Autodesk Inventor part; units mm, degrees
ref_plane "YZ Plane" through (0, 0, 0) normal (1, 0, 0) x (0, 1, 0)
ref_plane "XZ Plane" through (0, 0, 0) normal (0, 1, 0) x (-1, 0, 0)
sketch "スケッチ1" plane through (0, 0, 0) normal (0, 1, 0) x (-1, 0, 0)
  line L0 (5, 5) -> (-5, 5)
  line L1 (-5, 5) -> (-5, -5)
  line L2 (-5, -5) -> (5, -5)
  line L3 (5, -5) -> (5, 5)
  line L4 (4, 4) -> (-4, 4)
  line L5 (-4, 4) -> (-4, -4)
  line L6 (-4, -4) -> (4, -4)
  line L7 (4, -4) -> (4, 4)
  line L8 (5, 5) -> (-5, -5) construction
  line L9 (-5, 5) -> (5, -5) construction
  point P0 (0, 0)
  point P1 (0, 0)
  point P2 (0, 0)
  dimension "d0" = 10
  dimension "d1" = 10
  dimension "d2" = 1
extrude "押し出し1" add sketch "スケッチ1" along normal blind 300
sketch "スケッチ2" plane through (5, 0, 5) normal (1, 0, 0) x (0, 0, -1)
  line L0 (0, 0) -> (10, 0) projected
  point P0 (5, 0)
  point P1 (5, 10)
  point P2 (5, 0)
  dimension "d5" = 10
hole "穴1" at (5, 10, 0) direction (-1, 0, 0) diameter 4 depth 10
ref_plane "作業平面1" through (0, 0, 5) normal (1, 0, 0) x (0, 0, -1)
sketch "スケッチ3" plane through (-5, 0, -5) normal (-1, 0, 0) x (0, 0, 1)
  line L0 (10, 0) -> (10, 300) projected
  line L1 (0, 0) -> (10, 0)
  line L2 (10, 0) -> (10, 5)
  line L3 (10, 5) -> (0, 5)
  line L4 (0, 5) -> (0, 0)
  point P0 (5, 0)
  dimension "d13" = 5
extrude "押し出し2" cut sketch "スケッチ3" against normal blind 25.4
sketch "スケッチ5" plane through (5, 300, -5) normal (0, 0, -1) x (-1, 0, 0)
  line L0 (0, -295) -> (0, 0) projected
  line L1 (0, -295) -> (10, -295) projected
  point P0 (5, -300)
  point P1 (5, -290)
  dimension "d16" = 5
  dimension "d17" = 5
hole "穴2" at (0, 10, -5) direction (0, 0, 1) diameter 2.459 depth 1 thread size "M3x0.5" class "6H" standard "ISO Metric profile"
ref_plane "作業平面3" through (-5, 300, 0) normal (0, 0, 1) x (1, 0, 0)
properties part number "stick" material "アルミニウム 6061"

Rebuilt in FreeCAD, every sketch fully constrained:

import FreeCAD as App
import Part
import Sketcher
Q = App.Units.Quantity


def add_polygon(sketch, points):
    """Adds a closed chain of lines whose ends are joined by coincident constraints."""
    first, n = sketch.GeometryCount, len(points)
    for a, b in zip(points, points[1:] + points[:1]):
        sketch.addGeometry(Part.LineSegment(App.Vector(*a, 0), App.Vector(*b, 0)), False)
    for i in range(n):
        sketch.addConstraint(Sketcher.Constraint("Coincident", first + i, 2, first + (i + 1) % n, 1))

doc = App.newDocument("Part")
body = doc.addObject("PartDesign::Body", "Body")

sketch1 = doc.addObject("Sketcher::SketchObject", "Sketch")
body.addObject(sketch1)
sketch1.AttachmentSupport = (doc.XZ_Plane, [""])
sketch1.MapMode = "FlatFace"
add_polygon(sketch1, [(-5, -5), (-5, 5), (5, 5), (5, -5)])
add_polygon(sketch1, [(4, 4), (-4, 4), (-4, -4), (4, -4)])
sketch1.addConstraint([
    Sketcher.Constraint("Vertical", 0),
    Sketcher.Constraint("Horizontal", 1),
    Sketcher.Constraint("Vertical", 2),
    Sketcher.Constraint("Horizontal", 3),
    Sketcher.Constraint("Horizontal", 4),
    Sketcher.Constraint("Vertical", 5),
    Sketcher.Constraint("Horizontal", 6),
    Sketcher.Constraint("Vertical", 7),
    Sketcher.Constraint("Symmetric", 0, 2, 2, 2, -1, 1),
    Sketcher.Constraint("Symmetric", 4, 2, 6, 2, -1, 1),
    Sketcher.Constraint("Equal", 3, 0),
    Sketcher.Constraint("Equal", 6, 5),
    Sketcher.Constraint("DistanceX", 1, 1, 1, 2, Q("10 mm")),
    Sketcher.Constraint("DistanceX", 0, 2, 4, 2, Q("1 mm")),
])
pad1 = doc.addObject("PartDesign::Pad", "Pad")
body.addObject(pad1)
pad1.Profile = sketch1
pad1.Length = 300
pad1.Reversed = True

sketch2 = doc.addObject("Sketcher::SketchObject", "Sketch001")
body.addObject(sketch2)
sketch2.AttachmentSupport = (doc.YZ_Plane, [""])
sketch2.MapMode = "FlatFace"
sketch2.AttachmentOffset = App.Placement(App.Vector(0, 0, 5), App.Rotation())
sketch2.addGeometry(Part.Circle(App.Vector(10, 0, 0), App.Vector(0, 0, 1), 2), False)
sketch2.addConstraint([
    Sketcher.Constraint("PointOnObject", 0, 3, -1),
    Sketcher.Constraint("Diameter", 0, Q("4 mm")),
    Sketcher.Constraint("DistanceX", -1, 1, 0, 3, Q("10 mm")),
])
doc.recompute()
hole = doc.addObject("PartDesign::Hole", "Hole")
body.addObject(hole)
hole.Profile = sketch2
hole.ThreadType = "None"
hole.Diameter = 4
hole.DepthType = "Dimension"
hole.Depth = 10
hole.DrillPoint = "Flat"

sketch3 = doc.addObject("Sketcher::SketchObject", "Sketch002")
body.addObject(sketch3)
sketch3.AttachmentSupport = (doc.YZ_Plane, [""])
sketch3.MapMode = "FlatFace"
sketch3.AttachmentOffset = App.Placement(App.Vector(0, 0, -5), App.Rotation())
add_polygon(sketch3, [(0, -5), (0, 5), (5, 5), (5, -5)])
sketch3.addConstraint([
    Sketcher.Constraint("Vertical", 0),
    Sketcher.Constraint("Horizontal", 1),
    Sketcher.Constraint("Vertical", 2),
    Sketcher.Constraint("Horizontal", 3),
    Sketcher.Constraint("Symmetric", 0, 2, 3, 2, -1, 1),
    Sketcher.Constraint("DistanceX", 1, 1, 1, 2, Q("5 mm")),
    Sketcher.Constraint("DistanceY", -1, 1, 0, 2, Q("5 mm")),
])
pocket1 = doc.addObject("PartDesign::Pocket", "Pocket")
body.addObject(pocket1)
pocket1.Profile = sketch3
pocket1.Length = 25.4
pocket1.Reversed = True

sketch4 = doc.addObject("Sketcher::SketchObject", "Sketch003")
body.addObject(sketch4)
sketch4.AttachmentSupport = (doc.XY_Plane, [""])
sketch4.MapMode = "FlatFace"
sketch4.AttachmentOffset = App.Placement(App.Vector(0, 0, -5), App.Rotation())
sketch4.addGeometry(Part.Circle(App.Vector(0, 10, 0), App.Vector(0, 0, 1), 1.2), False)
sketch4.addConstraint([
    Sketcher.Constraint("PointOnObject", 0, 3, -2),
    Sketcher.Constraint("Diameter", 0, Q("2.459 mm")),
    Sketcher.Constraint("DistanceY", -1, 1, 0, 3, Q("10 mm")),
])
doc.recompute()
hole2 = doc.addObject("PartDesign::Hole", "Hole001")
body.addObject(hole2)
hole2.Profile = sketch4
hole2.ThreadType = "None"
hole2.Diameter = 2.459
hole2.DepthType = "Dimension"
hole2.Depth = 1
hole2.DrillPoint = "Flat"
hole2.Reversed = True

doc.recompute()
